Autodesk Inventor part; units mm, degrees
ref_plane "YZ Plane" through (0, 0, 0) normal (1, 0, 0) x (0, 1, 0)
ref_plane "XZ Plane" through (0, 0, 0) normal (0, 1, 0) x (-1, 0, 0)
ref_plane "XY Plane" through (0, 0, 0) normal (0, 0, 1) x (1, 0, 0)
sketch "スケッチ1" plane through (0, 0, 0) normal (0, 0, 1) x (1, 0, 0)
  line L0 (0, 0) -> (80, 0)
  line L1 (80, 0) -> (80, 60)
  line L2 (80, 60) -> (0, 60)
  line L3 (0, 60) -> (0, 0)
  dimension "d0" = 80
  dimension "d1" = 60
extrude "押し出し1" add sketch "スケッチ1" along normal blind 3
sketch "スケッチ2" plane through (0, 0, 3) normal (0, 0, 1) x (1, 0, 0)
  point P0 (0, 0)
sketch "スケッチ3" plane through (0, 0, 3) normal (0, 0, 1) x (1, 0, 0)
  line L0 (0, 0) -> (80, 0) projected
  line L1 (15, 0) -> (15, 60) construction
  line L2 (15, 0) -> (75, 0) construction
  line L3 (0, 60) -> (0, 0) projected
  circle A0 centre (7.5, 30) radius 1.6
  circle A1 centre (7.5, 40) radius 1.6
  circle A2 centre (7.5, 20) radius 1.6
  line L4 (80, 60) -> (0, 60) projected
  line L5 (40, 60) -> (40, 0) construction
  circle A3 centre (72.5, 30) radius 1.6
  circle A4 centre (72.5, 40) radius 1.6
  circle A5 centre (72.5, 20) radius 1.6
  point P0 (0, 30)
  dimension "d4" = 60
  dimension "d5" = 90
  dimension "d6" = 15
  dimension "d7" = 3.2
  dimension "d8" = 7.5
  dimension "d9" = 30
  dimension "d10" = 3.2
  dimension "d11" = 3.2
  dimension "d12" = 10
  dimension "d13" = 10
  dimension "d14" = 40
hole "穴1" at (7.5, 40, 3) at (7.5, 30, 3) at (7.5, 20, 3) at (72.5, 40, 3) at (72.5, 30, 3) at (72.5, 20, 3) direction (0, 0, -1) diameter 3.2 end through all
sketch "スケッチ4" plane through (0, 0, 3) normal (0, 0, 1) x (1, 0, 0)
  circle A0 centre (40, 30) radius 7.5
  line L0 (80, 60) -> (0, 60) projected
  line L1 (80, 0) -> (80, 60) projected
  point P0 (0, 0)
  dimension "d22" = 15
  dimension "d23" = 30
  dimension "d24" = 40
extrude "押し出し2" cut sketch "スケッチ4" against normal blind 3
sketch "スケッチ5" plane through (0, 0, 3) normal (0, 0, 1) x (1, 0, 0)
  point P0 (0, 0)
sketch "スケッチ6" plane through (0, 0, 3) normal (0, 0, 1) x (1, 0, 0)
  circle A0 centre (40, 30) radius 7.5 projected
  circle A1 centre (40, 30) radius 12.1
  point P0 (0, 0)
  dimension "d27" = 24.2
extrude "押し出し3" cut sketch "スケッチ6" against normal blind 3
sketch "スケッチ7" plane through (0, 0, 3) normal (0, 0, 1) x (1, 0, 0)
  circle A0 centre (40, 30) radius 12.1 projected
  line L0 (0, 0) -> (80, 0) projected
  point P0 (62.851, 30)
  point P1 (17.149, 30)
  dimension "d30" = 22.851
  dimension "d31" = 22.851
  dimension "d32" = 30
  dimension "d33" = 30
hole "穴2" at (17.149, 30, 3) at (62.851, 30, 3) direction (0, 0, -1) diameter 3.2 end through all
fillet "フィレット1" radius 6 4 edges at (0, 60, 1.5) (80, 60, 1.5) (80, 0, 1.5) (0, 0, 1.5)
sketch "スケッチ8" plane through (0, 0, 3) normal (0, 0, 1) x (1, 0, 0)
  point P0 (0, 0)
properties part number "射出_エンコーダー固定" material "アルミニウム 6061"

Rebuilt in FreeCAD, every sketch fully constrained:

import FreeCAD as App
import Part
import Sketcher


def edges_at(feature, points):
    """Names of the edges that pass closest to the given points."""
    edges = feature.Shape.Edges
    near = lambda p: min(range(len(edges)), key=lambda i: edges[i].distToShape(Part.Vertex(*p))[0])
    return sorted({f"Edge{near(p) + 1}" for p in points})


def add_polygon(sketch, points):
    """Adds a closed chain of lines whose ends are joined by coincident constraints."""
    first, n = sketch.GeometryCount, len(points)
    for a, b in zip(points, points[1:] + points[:1]):
        sketch.addGeometry(Part.LineSegment(App.Vector(*a, 0), App.Vector(*b, 0)), False)
    for i in range(n):
        sketch.addConstraint(Sketcher.Constraint("Coincident", first + i, 2, first + (i + 1) % n, 1))

doc = App.newDocument("Part")
body = doc.addObject("PartDesign::Body", "Body")

# Sketch on XY plane
sketch1 = body.newObject("Sketcher::SketchObject", "Sketch")
sketch1.AttachmentSupport = (doc.getObject("XY_Plane"), [""])
sketch1.MapMode = "FlatFace"
add_polygon(sketch1, [(0, 60), (0, 0), (80, 0), (80, 60)])  # lines 0-3
sketch1.addConstraint([
    Sketcher.Constraint("Vertical", 0),
    Sketcher.Constraint("Horizontal", 1),
    Sketcher.Constraint("Vertical", 2),
    Sketcher.Constraint("Horizontal", 3),
    Sketcher.Constraint("Coincident", 0, 2, -1, 1),
    Sketcher.Constraint("DistanceX", 1, 1, 1, 2, 80.0),
    Sketcher.Constraint("DistanceY", 0, 2, 0, 1, 60.0),
])
pad1 = body.newObject("PartDesign::Pad", "Pad")
pad1.Profile = sketch1
pad1.Length = 3

# Sketch on XY plane
sketch2 = body.newObject("Sketcher::SketchObject", "Sketch001")
sketch2.AttachmentSupport = (doc.getObject("XY_Plane"), [""])
sketch2.MapMode = "FlatFace"
sketch2.AttachmentOffset = App.Placement(App.Vector(0, 0, 3), App.Rotation())
sketch2.addGeometry([
    Part.Circle(App.Vector(7.5, 40, 0), App.Vector(0, 0, 1), 1.6),  # 0
    Part.Circle(App.Vector(7.5, 30, 0), App.Vector(0, 0, 1), 1.6),  # 1
    Part.Circle(App.Vector(7.5, 20, 0), App.Vector(0, 0, 1), 1.6),  # 2
    Part.Circle(App.Vector(72.5, 40, 0), App.Vector(0, 0, 1), 1.6),  # 3
    Part.Circle(App.Vector(72.5, 30, 0), App.Vector(0, 0, 1), 1.6),  # 4
    Part.Circle(App.Vector(72.5, 20, 0), App.Vector(0, 0, 1), 1.6),  # 5
], False)
sketch2.addConstraint([
    Sketcher.Constraint("Equal", 0, 1),
    Sketcher.Constraint("Equal", 1, 2),
    Sketcher.Constraint("Equal", 2, 3),
    Sketcher.Constraint("Equal", 3, 4),
    Sketcher.Constraint("Equal", 4, 5),
    Sketcher.Constraint("Horizontal", 0, 3, 3, 3),
    Sketcher.Constraint("Horizontal", 1, 3, 4, 3),
    Sketcher.Constraint("Horizontal", 2, 3, 5, 3),
    Sketcher.Constraint("Vertical", 0, 3, 1, 3),
    Sketcher.Constraint("Vertical", 1, 3, 2, 3),
    Sketcher.Constraint("Vertical", 3, 3, 4, 3),
    Sketcher.Constraint("Vertical", 4, 3, 5, 3),
    Sketcher.Constraint("Diameter", 0, 3.2),
    Sketcher.Constraint("DistanceY", -1, 1, 0, 3, 40.0),
    Sketcher.Constraint("DistanceY", -1, 1, 1, 3, 30.0),
    Sketcher.Constraint("DistanceY", -1, 1, 2, 3, 20.0),
    Sketcher.Constraint("DistanceX", 0, 3, 3, 3, 65.0),
    Sketcher.Constraint("DistanceX", -1, 1, 0, 3, 7.5),
])
doc.recompute()
hole = body.newObject("PartDesign::Hole", "Hole")
hole.Profile = sketch2
hole.ThreadType = "None"
hole.Diameter = 3.2
hole.DepthType = "ThroughAll"

# Sketch on XY plane
sketch3 = body.newObject("Sketcher::SketchObject", "Sketch002")
sketch3.AttachmentSupport = (doc.getObject("XY_Plane"), [""])
sketch3.MapMode = "FlatFace"
sketch3.AttachmentOffset = App.Placement(App.Vector(0, 0, 3), App.Rotation())
sketch3.addGeometry(Part.Circle(App.Vector(40, 30, 0), App.Vector(0, 0, 1), 8), False)
sketch3.addConstraint([
    Sketcher.Constraint("Diameter", 0, 15.0),
    Sketcher.Constraint("DistanceX", -1, 1, 0, 3, 40.0),
    Sketcher.Constraint("DistanceY", -1, 1, 0, 3, 30.0),
])
pocket1 = body.newObject("PartDesign::Pocket", "Pocket")
pocket1.Profile = sketch3
pocket1.Length = 3

# Sketch on XY plane
sketch4 = body.newObject("Sketcher::SketchObject", "Sketch003")
sketch4.AttachmentSupport = (doc.getObject("XY_Plane"), [""])
sketch4.MapMode = "FlatFace"
sketch4.AttachmentOffset = App.Placement(App.Vector(0, 0, 3), App.Rotation())
sketch4.addGeometry([
    Part.Circle(App.Vector(40, 30, 0), App.Vector(0, 0, 1), 12),
    Part.Circle(App.Vector(40, 30, 0), App.Vector(0, 0, 1), 8),
], False)
sketch4.addConstraint([
    Sketcher.Constraint("Coincident", 1, 3, 0, 3),
    Sketcher.Constraint("Diameter", 0, 24.2),
    Sketcher.Constraint("Diameter", 1, 15.0),
    Sketcher.Constraint("DistanceX", -1, 1, 0, 3, 40.0),
    Sketcher.Constraint("DistanceY", -1, 1, 0, 3, 30.0),
])
pocket2 = body.newObject("PartDesign::Pocket", "Pocket001")
pocket2.Profile = sketch4
pocket2.Length = 3

# Sketch on XY plane
sketch5 = body.newObject("Sketcher::SketchObject", "Sketch004")
sketch5.AttachmentSupport = (doc.getObject("XY_Plane"), [""])
sketch5.MapMode = "FlatFace"
sketch5.AttachmentOffset = App.Placement(App.Vector(0, 0, 3), App.Rotation())
sketch5.addGeometry([
    Part.Circle(App.Vector(17.1, 30, 0), App.Vector(0, 0, 1), 1.6),
    Part.Circle(App.Vector(62.9, 30, 0), App.Vector(0, 0, 1), 1.6),
], False)
sketch5.addConstraint([
    Sketcher.Constraint("Equal", 0, 1),
    Sketcher.Constraint("Horizontal", 0, 3, 1, 3),
    Sketcher.Constraint("Diameter", 0, 3.2),
    Sketcher.Constraint("DistanceY", -1, 1, 0, 3, 30.0),
    Sketcher.Constraint("DistanceX", -1, 1, 0, 3, 17.149),
    Sketcher.Constraint("DistanceX", -1, 1, 1, 3, 62.851),
])
doc.recompute()
hole2 = body.newObject("PartDesign::Hole", "Hole001")
hole2.Profile = sketch5
hole2.ThreadType = "None"
hole2.Diameter = 3.2
hole2.DepthType = "ThroughAll"
doc.recompute()

fillet = body.newObject("PartDesign::Fillet", "Fillet")
fillet.Base = (hole2, edges_at(hole2, [
    (0, 60, 1.5),
    (80, 60, 1.5),
    (80, 0, 1.5),
    (0, 0, 1.5),
]))
fillet.Radius = 6

doc.recompute()
